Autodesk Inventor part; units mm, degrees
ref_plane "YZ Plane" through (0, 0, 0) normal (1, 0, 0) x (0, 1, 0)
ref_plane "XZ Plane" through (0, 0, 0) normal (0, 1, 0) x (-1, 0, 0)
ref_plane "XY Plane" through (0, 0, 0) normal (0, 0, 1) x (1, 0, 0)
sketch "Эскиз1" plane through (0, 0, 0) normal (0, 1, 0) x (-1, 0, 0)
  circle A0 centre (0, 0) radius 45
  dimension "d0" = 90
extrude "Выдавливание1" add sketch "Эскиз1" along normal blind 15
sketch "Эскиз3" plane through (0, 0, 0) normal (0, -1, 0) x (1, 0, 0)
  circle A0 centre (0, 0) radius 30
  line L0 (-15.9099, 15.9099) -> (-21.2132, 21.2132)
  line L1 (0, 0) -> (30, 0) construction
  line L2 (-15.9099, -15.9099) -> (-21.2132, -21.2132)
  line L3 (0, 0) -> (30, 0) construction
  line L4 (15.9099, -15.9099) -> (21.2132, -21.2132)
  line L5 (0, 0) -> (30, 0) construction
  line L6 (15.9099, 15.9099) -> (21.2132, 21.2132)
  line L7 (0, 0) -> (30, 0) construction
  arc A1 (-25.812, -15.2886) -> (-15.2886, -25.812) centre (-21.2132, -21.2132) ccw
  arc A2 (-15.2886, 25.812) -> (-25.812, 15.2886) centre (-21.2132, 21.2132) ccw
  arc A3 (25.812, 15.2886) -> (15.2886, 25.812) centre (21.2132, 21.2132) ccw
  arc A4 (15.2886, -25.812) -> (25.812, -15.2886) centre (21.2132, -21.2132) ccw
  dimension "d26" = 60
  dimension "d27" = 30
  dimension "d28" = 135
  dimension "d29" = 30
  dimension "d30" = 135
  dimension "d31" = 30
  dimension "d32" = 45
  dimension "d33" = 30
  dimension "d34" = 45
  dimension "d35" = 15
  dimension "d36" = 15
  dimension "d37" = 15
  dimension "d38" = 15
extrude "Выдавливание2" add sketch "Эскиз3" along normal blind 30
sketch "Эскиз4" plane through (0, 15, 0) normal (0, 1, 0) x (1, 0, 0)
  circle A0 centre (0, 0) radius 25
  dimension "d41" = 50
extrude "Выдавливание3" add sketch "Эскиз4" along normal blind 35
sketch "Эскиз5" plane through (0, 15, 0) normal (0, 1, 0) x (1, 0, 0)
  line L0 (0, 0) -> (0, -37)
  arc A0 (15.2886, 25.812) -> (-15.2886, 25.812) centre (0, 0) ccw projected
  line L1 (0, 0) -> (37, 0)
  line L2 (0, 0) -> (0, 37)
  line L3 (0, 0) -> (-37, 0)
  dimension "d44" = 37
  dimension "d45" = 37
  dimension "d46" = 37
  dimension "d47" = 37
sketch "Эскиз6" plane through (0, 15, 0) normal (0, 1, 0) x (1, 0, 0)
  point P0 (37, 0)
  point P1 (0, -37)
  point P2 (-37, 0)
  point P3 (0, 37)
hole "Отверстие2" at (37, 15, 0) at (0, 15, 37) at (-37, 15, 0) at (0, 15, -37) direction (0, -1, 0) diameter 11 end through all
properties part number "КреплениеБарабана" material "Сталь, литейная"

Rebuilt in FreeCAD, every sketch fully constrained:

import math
import FreeCAD as App
import Part
import Sketcher

V = App.Vector

doc = App.newDocument("Part")
params = doc.addObject("Spreadsheet::Sheet", "Params")
for row, (alias, value) in enumerate([
    ("sketch1_diameter", "90 mm"),
    ("pad1_length", "15 mm"),
    ("sketch2_radius", "30 mm"),
    ("sketch2_radius2", "7.5 mm"),
    ("pad2_length", "30 mm"),
    ("sketch3_diameter", "50 mm"),
    ("pad3_length", "35 mm"),
    ("sketch4_diameter", "11 mm"),
    ("hole_diameter", "11 mm"),
], start=1):
    params.set(f"A{row}", alias)
    params.set(f"B{row}", "=" + value)
    params.setAlias(f"B{row}", alias)

body = doc.addObject("PartDesign::Body", "Body")

# Sketch on XZ plane
sketch1 = body.newObject("Sketcher::SketchObject", "Sketch")
sketch1.AttachmentSupport = (doc.getObject("XZ_Plane"), [""])
sketch1.MapMode = "FlatFace"
sketch1.addGeometry(Part.Circle(V(0, 0, 0), V(0, 0, 1), 45), False)
sketch1.addConstraint(Sketcher.Constraint("Coincident", 0, 3, -1, 1))
sketch1.addConstraint(Sketcher.Constraint("Diameter", 0, 90.0))
sketch1.setExpression("Constraints[1]", "Params.sketch1_diameter")
pad1 = body.newObject("PartDesign::Pad", "Pad")
pad1.Profile = sketch1
pad1.setExpression("Length", "Params.pad1_length")
pad1.Reversed = True

# Sketch on XZ plane
sketch2 = body.newObject("Sketcher::SketchObject", "Sketch001")
sketch2.AttachmentSupport = (doc.getObject("XZ_Plane"), [""])
sketch2.MapMode = "FlatFace"
sketch2.addGeometry(Part.ArcOfCircle(Part.Circle(V(0, 0, 0), V(0, 0, 1), 30), math.radians(-31), math.radians(31)), False)
sketch2.addGeometry(Part.ArcOfCircle(Part.Circle(V(21, 21, 0), V(0, 0, 1), 7), math.radians(-52), math.radians(142)), False)
sketch2.addGeometry(Part.ArcOfCircle(Part.Circle(V(0, 0, 0), V(0, 0, 1), 30), math.radians(59), math.radians(121)), False)
sketch2.addGeometry(Part.ArcOfCircle(Part.Circle(V(-21, 21, 0), V(0, 0, 1), 7), math.radians(38), math.radians(232)), False)
sketch2.addGeometry(Part.ArcOfCircle(Part.Circle(V(0, 0, 0), V(0, 0, 1), 30), math.radians(149), math.radians(211)), False)
sketch2.addGeometry(Part.ArcOfCircle(Part.Circle(V(-21, -21, 0), V(0, 0, 1), 7), math.radians(128), math.radians(322)), False)
sketch2.addGeometry(Part.ArcOfCircle(Part.Circle(V(0, 0, 0), V(0, 0, 1), 30), math.radians(-121), math.radians(-59)), False)
sketch2.addGeometry(Part.ArcOfCircle(Part.Circle(V(21, -21, 0), V(0, 0, 1), 7), math.radians(-142), math.radians(52)), False)
sketch2.addConstraint(Sketcher.Constraint("Coincident", 0, 2, 1, 1))
sketch2.addConstraint(Sketcher.Constraint("Coincident", 1, 2, 2, 1))
sketch2.addConstraint(Sketcher.Constraint("Coincident", 2, 2, 3, 1))
sketch2.addConstraint(Sketcher.Constraint("Coincident", 3, 2, 4, 1))
sketch2.addConstraint(Sketcher.Constraint("Coincident", 4, 2, 5, 1))
sketch2.addConstraint(Sketcher.Constraint("Coincident", 5, 2, 6, 1))
sketch2.addConstraint(Sketcher.Constraint("Coincident", 6, 2, 7, 1))
sketch2.addConstraint(Sketcher.Constraint("Coincident", 7, 2, 0, 1))
sketch2.addConstraint(Sketcher.Constraint("Coincident", 0, 3, -1, 1))
sketch2.addConstraint(Sketcher.Constraint("Coincident", 2, 3, -1, 1))
sketch2.addConstraint(Sketcher.Constraint("Coincident", 4, 3, -1, 1))
sketch2.addConstraint(Sketcher.Constraint("Coincident", 6, 3, -1, 1))
sketch2.addConstraint(Sketcher.Constraint("Equal", 0, 2))
sketch2.addConstraint(Sketcher.Constraint("Equal", 1, 3))
sketch2.addConstraint(Sketcher.Constraint("Equal", 2, 4))
sketch2.addConstraint(Sketcher.Constraint("Equal", 3, 5))
sketch2.addConstraint(Sketcher.Constraint("Equal", 4, 6))
sketch2.addConstraint(Sketcher.Constraint("Equal", 5, 7))
sketch2.addConstraint(Sketcher.Constraint("Symmetric", 1, 3, 5, 3, -1, 1))
sketch2.addConstraint(Sketcher.Constraint("Symmetric", 3, 3, 7, 3, -1, 1))
sketch2.addConstraint(Sketcher.Constraint("Symmetric", 1, 3, 3, 3, -2))
sketch2.addConstraint(Sketcher.Constraint("Radius", 0, 30.0))
sketch2.addConstraint(Sketcher.Constraint("Radius", 1, 7.5))
sketch2.addConstraint(Sketcher.Constraint("DistanceX", -1, 1, 0, 2, 25.812))
sketch2.addConstraint(Sketcher.Constraint("DistanceY", -1, 1, 1, 2, 25.812))
sketch2.setExpression("Constraints[21]", "Params.sketch2_radius")
sketch2.setExpression("Constraints[22]", "Params.sketch2_radius2")
pad2 = body.newObject("PartDesign::Pad", "Pad001")
pad2.Profile = sketch2
pad2.setExpression("Length", "Params.pad2_length")

# Sketch on XZ plane
sketch3 = body.newObject("Sketcher::SketchObject", "Sketch002")
sketch3.AttachmentSupport = (doc.getObject("XZ_Plane"), [""])
sketch3.MapMode = "FlatFace"
sketch3.AttachmentOffset = App.Placement(V(0, 0, -15), App.Rotation())
sketch3.addGeometry(Part.Circle(V(0, 0, 0), V(0, 0, 1), 25), False)
sketch3.addConstraint(Sketcher.Constraint("Coincident", 0, 3, -1, 1))
sketch3.addConstraint(Sketcher.Constraint("Diameter", 0, 50.0))
sketch3.setExpression("Constraints[1]", "Params.sketch3_diameter")
pad3 = body.newObject("PartDesign::Pad", "Pad002")
pad3.Profile = sketch3
pad3.setExpression("Length", "Params.pad3_length")
pad3.Reversed = True

# Sketch on XZ plane
sketch4 = body.newObject("Sketcher::SketchObject", "Sketch003")
sketch4.AttachmentSupport = (doc.getObject("XZ_Plane"), [""])
sketch4.MapMode = "FlatFace"
sketch4.AttachmentOffset = App.Placement(V(0, 0, -15), App.Rotation())
sketch4.addGeometry(Part.Circle(V(37, 0, 0), V(0, 0, 1), 6), False)
sketch4.addGeometry(Part.Circle(V(0, 37, 0), V(0, 0, 1), 6), False)
sketch4.addGeometry(Part.Circle(V(-37, 0, 0), V(0, 0, 1), 6), False)
sketch4.addGeometry(Part.Circle(V(0, -37, 0), V(0, 0, 1), 6), False)
sketch4.addConstraint(Sketcher.Constraint("Equal", 0, 1))
sketch4.addConstraint(Sketcher.Constraint("Equal", 1, 2))
sketch4.addConstraint(Sketcher.Constraint("Equal", 2, 3))
sketch4.addConstraint(Sketcher.Constraint("Symmetric", 0, 3, 2, 3, -1, 1))
sketch4.addConstraint(Sketcher.Constraint("Symmetric", 1, 3, 3, 3, -1, 1))
sketch4.addConstraint(Sketcher.Constraint("PointOnObject", 0, 3, -1))
sketch4.addConstraint(Sketcher.Constraint("PointOnObject", 1, 3, -2))
sketch4.addConstraint(Sketcher.Constraint("Diameter", 0, 11.0))
sketch4.addConstraint(Sketcher.Constraint("DistanceX", -1, 1, 0, 3, 37.0))
sketch4.addConstraint(Sketcher.Constraint("DistanceY", -1, 1, 1, 3, 37.0))
sketch4.setExpression("Constraints[7]", "Params.sketch4_diameter")
doc.recompute()
hole = body.newObject("PartDesign::Hole", "Hole")
hole.Profile = sketch4
hole.ThreadType = "None"
hole.setExpression("Diameter", "Params.hole_diameter")
hole.DepthType = "ThroughAll"
hole.Reversed = True

doc.recompute()
